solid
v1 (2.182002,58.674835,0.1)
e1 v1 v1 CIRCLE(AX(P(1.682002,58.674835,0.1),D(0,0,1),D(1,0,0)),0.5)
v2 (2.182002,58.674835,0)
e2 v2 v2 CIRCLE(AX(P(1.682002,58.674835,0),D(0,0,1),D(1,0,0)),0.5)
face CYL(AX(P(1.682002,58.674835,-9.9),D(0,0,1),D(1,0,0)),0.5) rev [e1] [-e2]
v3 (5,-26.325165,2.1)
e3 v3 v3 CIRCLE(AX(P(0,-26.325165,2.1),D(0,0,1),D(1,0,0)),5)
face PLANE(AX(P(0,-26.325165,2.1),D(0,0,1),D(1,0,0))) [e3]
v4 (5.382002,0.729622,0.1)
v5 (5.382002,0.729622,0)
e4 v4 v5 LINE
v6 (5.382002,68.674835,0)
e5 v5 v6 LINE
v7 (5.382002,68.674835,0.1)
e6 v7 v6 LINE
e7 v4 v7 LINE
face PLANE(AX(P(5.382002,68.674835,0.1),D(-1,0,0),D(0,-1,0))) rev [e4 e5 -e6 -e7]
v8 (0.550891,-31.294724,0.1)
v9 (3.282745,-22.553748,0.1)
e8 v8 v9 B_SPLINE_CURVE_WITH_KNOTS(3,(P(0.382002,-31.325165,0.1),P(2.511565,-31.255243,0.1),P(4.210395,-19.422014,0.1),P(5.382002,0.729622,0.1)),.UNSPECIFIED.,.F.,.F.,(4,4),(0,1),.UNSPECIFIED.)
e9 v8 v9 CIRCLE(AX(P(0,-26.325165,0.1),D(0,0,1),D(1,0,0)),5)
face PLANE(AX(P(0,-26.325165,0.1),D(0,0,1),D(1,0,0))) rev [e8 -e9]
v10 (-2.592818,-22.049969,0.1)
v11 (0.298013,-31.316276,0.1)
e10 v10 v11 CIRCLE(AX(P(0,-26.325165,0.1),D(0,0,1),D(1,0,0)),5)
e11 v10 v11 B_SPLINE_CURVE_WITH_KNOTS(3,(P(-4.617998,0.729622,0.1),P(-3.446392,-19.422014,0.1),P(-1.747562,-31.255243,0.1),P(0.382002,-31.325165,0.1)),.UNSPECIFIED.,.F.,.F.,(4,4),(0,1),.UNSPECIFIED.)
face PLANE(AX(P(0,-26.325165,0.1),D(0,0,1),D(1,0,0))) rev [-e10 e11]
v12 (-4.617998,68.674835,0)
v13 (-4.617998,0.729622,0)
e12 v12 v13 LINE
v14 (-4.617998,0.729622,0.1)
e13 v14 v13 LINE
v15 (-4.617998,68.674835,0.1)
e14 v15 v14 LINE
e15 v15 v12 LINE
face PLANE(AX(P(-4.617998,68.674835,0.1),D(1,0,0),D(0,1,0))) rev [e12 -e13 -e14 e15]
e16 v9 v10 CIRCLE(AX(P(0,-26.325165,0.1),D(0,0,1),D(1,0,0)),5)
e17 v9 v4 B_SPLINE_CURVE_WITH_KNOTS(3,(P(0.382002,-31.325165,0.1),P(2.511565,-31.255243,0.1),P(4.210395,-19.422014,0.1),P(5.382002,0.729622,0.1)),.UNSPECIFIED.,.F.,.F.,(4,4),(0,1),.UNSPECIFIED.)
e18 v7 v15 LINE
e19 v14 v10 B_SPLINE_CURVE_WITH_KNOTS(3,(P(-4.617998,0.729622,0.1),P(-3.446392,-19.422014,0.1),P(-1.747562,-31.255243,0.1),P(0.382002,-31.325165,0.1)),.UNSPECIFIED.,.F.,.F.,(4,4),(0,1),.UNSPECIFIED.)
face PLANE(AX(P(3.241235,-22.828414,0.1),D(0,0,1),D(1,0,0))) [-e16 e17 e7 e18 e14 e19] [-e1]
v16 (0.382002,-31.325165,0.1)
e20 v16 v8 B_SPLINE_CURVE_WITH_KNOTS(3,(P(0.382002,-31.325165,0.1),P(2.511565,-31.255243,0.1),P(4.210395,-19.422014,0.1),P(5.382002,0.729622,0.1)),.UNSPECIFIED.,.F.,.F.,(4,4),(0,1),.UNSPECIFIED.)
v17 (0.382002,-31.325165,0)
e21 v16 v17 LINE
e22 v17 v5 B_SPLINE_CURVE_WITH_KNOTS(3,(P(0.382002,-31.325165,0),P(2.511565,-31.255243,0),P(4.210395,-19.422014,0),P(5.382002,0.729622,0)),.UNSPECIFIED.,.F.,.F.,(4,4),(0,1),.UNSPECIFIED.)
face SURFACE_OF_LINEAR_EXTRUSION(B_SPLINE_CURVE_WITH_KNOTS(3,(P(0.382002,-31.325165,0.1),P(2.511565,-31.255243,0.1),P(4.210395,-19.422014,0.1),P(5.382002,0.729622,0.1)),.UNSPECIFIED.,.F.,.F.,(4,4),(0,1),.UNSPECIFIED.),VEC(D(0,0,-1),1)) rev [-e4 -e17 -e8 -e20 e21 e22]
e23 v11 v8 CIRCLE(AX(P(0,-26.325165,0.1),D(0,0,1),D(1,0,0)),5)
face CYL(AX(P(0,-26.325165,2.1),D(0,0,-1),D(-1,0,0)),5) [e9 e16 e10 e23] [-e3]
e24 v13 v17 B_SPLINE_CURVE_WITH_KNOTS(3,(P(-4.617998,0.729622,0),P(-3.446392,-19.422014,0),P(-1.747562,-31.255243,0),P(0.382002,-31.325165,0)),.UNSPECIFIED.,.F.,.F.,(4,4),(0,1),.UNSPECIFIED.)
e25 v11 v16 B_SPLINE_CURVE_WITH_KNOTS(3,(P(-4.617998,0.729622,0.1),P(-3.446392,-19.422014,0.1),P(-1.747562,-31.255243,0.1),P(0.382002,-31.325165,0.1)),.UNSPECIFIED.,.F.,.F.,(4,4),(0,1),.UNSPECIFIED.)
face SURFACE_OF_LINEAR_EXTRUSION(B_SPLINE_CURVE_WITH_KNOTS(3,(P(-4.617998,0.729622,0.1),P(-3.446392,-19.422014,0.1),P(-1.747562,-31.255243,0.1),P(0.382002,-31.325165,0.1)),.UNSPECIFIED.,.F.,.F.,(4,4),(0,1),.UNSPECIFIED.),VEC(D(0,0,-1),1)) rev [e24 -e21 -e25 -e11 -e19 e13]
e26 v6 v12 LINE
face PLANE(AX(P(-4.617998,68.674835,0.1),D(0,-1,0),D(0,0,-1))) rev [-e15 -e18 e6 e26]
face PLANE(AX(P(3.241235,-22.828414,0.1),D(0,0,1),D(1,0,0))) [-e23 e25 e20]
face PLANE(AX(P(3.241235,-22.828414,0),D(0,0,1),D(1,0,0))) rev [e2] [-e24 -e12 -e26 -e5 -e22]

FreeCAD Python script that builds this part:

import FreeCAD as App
import Part
import Sketcher

doc = App.newDocument("Part")
body = doc.addObject("PartDesign::Body", "Body")

# Sketch on XY plane
sketch1 = body.newObject("Sketcher::SketchObject", "Sketch")
sketch1.AttachmentSupport = (doc.getObject("XY_Plane"), [""])
sketch1.MapMode = "FlatFace"
sketch1.addGeometry(Part.LineSegment(App.Vector(5.382002, 68.674835, 0), App.Vector(-4.617998, 68.674835, 0)), False)
sketch1.addGeometry(Part.LineSegment(App.Vector(-4.617998, 68.674835, 0), App.Vector(-4.617998, 0.729622, 0)), False)
sketch1.addGeometry(Part.BSplineCurve([App.Vector(-4.617998, 0.729622, 0), App.Vector(-3.446392, -19.422014, 0), App.Vector(-1.747562, -31.255243, 0), App.Vector(0.382002, -31.325165, 0)], [4, 4], [0, 1], False, 3, [1, 1, 1, 1], False), False)
sketch1.addGeometry(Part.BSplineCurve([App.Vector(5.382002, 0.729622, 0), App.Vector(4.210395, -19.422014, 0), App.Vector(2.511565, -31.255243, 0), App.Vector(0.382002, -31.325165, 0)], [4, 4], [0, 1], False, 3, [1, 1, 1, 1], False), False)
sketch1.addGeometry(Part.LineSegment(App.Vector(5.382002, 0.729622, 0), App.Vector(5.382002, 68.674835, 0)), False)
sketch1.addConstraint(Sketcher.Constraint("Block", 2))
sketch1.addConstraint(Sketcher.Constraint("Block", 3))
sketch1.addConstraint(Sketcher.Constraint("Coincident", 0, 2, 1, 1))
sketch1.addConstraint(Sketcher.Constraint("Coincident", 1, 2, 2, 1))
sketch1.addConstraint(Sketcher.Constraint("Coincident", 3, 1, 4, 1))
sketch1.addConstraint(Sketcher.Constraint("Coincident", 4, 2, 0, 1))
sketch1.addConstraint(Sketcher.Constraint("Horizontal", 0))
sketch1.addConstraint(Sketcher.Constraint("Vertical", 1))
sketch1.addConstraint(Sketcher.Constraint("Vertical", 4))
sketch1.addConstraint(Sketcher.Constraint("DistanceY", 1, 2, 1, 1, 67.945214))
pad1 = body.newObject("PartDesign::Pad", "Pad")
pad1.Profile = sketch1
pad1.Length = 0.1

# Sketch on XY plane
sketch2 = body.newObject("Sketcher::SketchObject", "Sketch001")
sketch2.AttachmentSupport = (doc.getObject("XY_Plane"), [""])
sketch2.MapMode = "FlatFace"
sketch2.AttachmentOffset = App.Placement(App.Vector(0, 0, 0.1), App.Rotation())
sketch2.addGeometry(Part.Circle(App.Vector(0, -26, 0), App.Vector(0, 0, 1), 5), False)
sketch2.addConstraint(Sketcher.Constraint("PointOnObject", 0, 3, -2))
sketch2.addConstraint(Sketcher.Constraint("Diameter", 0, 10.0))
sketch2.addConstraint(Sketcher.Constraint("DistanceY", 0, 3, -1, 1, 26.325165))
pad2 = body.newObject("PartDesign::Pad", "Pad001")
pad2.Profile = sketch2
pad2.Length = 2

# Sketch on XY plane
sketch3 = body.newObject("Sketcher::SketchObject", "Sketch002")
sketch3.AttachmentSupport = (doc.getObject("XY_Plane"), [""])
sketch3.MapMode = "FlatFace"
sketch3.AttachmentOffset = App.Placement(App.Vector(0, 0, 0.1), App.Rotation())
sketch3.addGeometry(Part.Circle(App.Vector(1.7, 58.7, 0), App.Vector(0, 0, 1), 0.5), False)
sketch3.addConstraint(Sketcher.Constraint("Diameter", 0, 1.0))
sketch3.addConstraint(Sketcher.Constraint("DistanceX", -1, 1, 0, 3, 1.682002))
sketch3.addConstraint(Sketcher.Constraint("DistanceY", -1, 1, 0, 3, 58.674835))
pocket1 = body.newObject("PartDesign::Pocket", "Pocket")
pocket1.Profile = sketch3
pocket1.Length = 10

doc.recompute()
